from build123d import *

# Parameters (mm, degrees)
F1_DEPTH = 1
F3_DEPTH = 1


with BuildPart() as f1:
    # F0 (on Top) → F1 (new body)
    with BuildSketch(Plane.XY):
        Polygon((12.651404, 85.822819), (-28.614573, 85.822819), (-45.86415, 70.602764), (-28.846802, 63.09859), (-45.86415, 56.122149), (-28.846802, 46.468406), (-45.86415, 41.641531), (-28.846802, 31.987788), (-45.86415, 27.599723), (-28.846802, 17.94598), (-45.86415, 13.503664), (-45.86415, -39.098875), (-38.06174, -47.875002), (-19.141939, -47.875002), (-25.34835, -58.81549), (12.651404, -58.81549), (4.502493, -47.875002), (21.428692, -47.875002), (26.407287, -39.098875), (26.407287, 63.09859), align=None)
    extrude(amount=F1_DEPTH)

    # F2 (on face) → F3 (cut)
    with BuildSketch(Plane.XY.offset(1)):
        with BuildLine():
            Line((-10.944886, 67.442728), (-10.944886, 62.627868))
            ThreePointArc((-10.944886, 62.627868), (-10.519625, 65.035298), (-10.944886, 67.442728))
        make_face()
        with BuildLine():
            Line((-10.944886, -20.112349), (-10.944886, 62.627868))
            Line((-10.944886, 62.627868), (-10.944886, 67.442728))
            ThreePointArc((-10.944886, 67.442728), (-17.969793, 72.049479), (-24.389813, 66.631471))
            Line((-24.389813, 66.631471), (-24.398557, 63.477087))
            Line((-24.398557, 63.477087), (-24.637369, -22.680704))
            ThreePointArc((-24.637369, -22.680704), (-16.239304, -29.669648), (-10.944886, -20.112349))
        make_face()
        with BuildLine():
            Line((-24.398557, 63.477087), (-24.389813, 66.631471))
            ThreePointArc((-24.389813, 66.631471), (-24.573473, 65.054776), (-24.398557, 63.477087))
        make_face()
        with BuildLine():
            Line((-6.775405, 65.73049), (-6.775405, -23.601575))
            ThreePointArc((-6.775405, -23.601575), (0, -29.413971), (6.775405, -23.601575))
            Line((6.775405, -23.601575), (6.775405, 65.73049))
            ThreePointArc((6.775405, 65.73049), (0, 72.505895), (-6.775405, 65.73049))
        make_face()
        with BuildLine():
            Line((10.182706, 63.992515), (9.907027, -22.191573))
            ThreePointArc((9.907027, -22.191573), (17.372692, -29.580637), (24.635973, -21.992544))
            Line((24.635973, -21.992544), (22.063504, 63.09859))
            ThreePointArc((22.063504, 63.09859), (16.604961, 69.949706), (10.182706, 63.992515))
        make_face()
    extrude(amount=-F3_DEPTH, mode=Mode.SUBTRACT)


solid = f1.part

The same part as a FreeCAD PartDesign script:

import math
import FreeCAD as App
import Part
import Sketcher
from FreeCAD import Vector
Q = App.Units.Quantity


def add_polygon(sketch, points):
    """Adds a closed chain of lines whose ends are joined by coincident constraints."""
    first, n = sketch.GeometryCount, len(points)
    for a, b in zip(points, points[1:] + points[:1]):
        sketch.addGeometry(Part.LineSegment(App.Vector(*a, 0), App.Vector(*b, 0)), False)
    for i in range(n):
        sketch.addConstraint(Sketcher.Constraint("Coincident", first + i, 2, first + (i + 1) % n, 1))

doc = App.newDocument("Part")
body = doc.addObject("PartDesign::Body", "Body")

sketch1 = body.newObject("Sketcher::SketchObject", "Sketch")
sketch1.AttachmentSupport = (doc.getObject("XY_Plane"), [""])
sketch1.MapMode = "FlatFace"
add_polygon(sketch1, [(12.651404, 85.822819), (-28.614573, 85.822819), (-45.86415, 70.602764), (-28.846802, 63.09859), (-45.86415, 56.122149), (-28.846802, 46.468406), (-45.86415, 41.641531), (-28.846802, 31.987788), (-45.86415, 27.599723), (-28.846802, 17.94598), (-45.86415, 13.503664), (-45.86415, -39.098875), (-38.06174, -47.875002), (-19.141939, -47.875002), (-25.34835, -58.81549), (12.651404, -58.81549), (4.502493, -47.875002), (21.428692, -47.875002), (26.407287, -39.098875), (26.407287, 63.09859)])
sketch1.addConstraint(Sketcher.Constraint("Horizontal", 0))
sketch1.addConstraint(Sketcher.Constraint("Vertical", 10))
sketch1.addConstraint(Sketcher.Constraint("Horizontal", 12))
sketch1.addConstraint(Sketcher.Constraint("Horizontal", 14))
sketch1.addConstraint(Sketcher.Constraint("Horizontal", 16))
sketch1.addConstraint(Sketcher.Constraint("Vertical", 18))
sketch1.addConstraint(Sketcher.Constraint("Parallel", 4, 6))
sketch1.addConstraint(Sketcher.Constraint("Parallel", 6, 8))
sketch1.addConstraint(Sketcher.Constraint("Perpendicular", 8, 13))
sketch1.addConstraint(Sketcher.Constraint("Parallel", 13, 17))
sketch1.addConstraint(Sketcher.Constraint("Horizontal", 12, 2, 15, 2))
sketch1.addConstraint(Sketcher.Constraint("Horizontal", 10, 2, 17, 2))
sketch1.addConstraint(Sketcher.Constraint("Horizontal", 2, 2, 18, 2))
sketch1.addConstraint(Sketcher.Constraint("Vertical", 1, 2, 3, 2))
sketch1.addConstraint(Sketcher.Constraint("Vertical", 2, 2, 4, 2))
sketch1.addConstraint(Sketcher.Constraint("Vertical", 3, 2, 5, 2))
sketch1.addConstraint(Sketcher.Constraint("Vertical", 4, 2, 6, 2))
sketch1.addConstraint(Sketcher.Constraint("Vertical", 5, 2, 7, 2))
sketch1.addConstraint(Sketcher.Constraint("Vertical", 6, 2, 8, 2))
sketch1.addConstraint(Sketcher.Constraint("Vertical", 7, 2, 9, 2))
sketch1.addConstraint(Sketcher.Constraint("Vertical", 14, 2, 19, 2))
sketch1.addConstraint(Sketcher.Constraint("Distance", 11, Q("11.742998 mm")))
sketch1.addConstraint(Sketcher.Constraint("DistanceX", 12, 1, 12, 2, Q("18.919801 mm")))
sketch1.addConstraint(Sketcher.Constraint("DistanceX", 16, 1, 16, 2, Q("16.926199 mm")))
sketch1.addConstraint(Sketcher.Constraint("DistanceY", 10, 2, 10, 1, Q("52.602539 mm")))
sketch1.addConstraint(Sketcher.Constraint("DistanceX", 2, 2, -1, 1, Q("28.846802 mm")))
sketch1.addConstraint(Sketcher.Constraint("DistanceY", 10, 2, 7, 2, Q("66.698598 mm")))
sketch1.addConstraint(Sketcher.Constraint("DistanceX", 10, 2, 13, 2, Q("20.5158 mm")))
sketch1.addConstraint(Sketcher.Constraint("Distance", 2, Q("18.598461 mm")))
sketch1.addConstraint(Sketcher.Constraint("Distance", 3, Q("18.391869 mm")))
sketch1.addConstraint(Sketcher.Constraint("Distance", 4, Q("19.564889 mm")))
sketch1.addConstraint(Sketcher.Constraint("Distance", 15, Q("13.641812 mm")))
sketch1.addConstraint(Sketcher.Constraint("DistanceX", 0, 2, 0, 1, Q("41.265977 mm")))
sketch1.addConstraint(Sketcher.Constraint("DistanceX", 14, 1, 14, 2, Q("37.999754 mm")))
sketch1.addConstraint(Sketcher.Constraint("DistanceY", 18, 1, 18, 2, Q("102.197465 mm")))
sketch1.addConstraint(Sketcher.Constraint("DistanceY", -1, 1, 0, 2, Q("85.822819 mm")))
sketch1.addConstraint(Sketcher.Constraint("DistanceX", 1, 2, -1, 1, Q("45.86415 mm")))
sketch1.addConstraint(Sketcher.Constraint("DistanceY", -1, 1, 2, 2, Q("63.09859 mm")))
sketch1.addConstraint(Sketcher.Constraint("DistanceY", -1, 1, 5, 2, Q("41.641531 mm")))
sketch1.addConstraint(Sketcher.Constraint("DistanceX", 11, 2, -1, 1, Q("38.06174 mm")))
pad1 = body.newObject("PartDesign::Pad", "Pad")
pad1.Profile = sketch1
pad1.Length = 1

sketch2 = body.newObject("Sketcher::SketchObject", "Sketch001")
sketch2.AttachmentSupport = (doc.getObject("XY_Plane"), [""])
sketch2.MapMode = "FlatFace"
sketch2.AttachmentOffset = App.Placement(Vector(0, 0, 1), App.Rotation())
sketch2.addGeometry(Part.ArcOfCircle(Part.Circle(Vector(-17.546564, 65.035298, 0), Vector(0, 0, 1), 7.026939), math.radians(-20.035366), math.radians(20.035366)), False)
sketch2.addGeometry(Part.ArcOfCircle(Part.Circle(Vector(-17.546562, 65.035299, 0), Vector(0, 0, 1), 7.026937), math.radians(20.035362), math.radians(166.870635)), False)
sketch2.addGeometry(Part.ArcOfCircle(Part.Circle(Vector(-17.54657, 65.035297, 0), Vector(0, 0, 1), 7.02693), math.radians(166.870607), math.radians(192.811744)), False)
sketch2.addGeometry(Part.LineSegment(Vector(-24.398557, 63.477087, 0), Vector(-24.637369, -22.680704, 0)), False)
sketch2.addGeometry(Part.ArcOfCircle(Part.Circle(Vector(-17.546562, -22.700358, 0), Vector(0, 0, 1), 7.090834), math.radians(179.841188), math.radians(381.406324)), False)
sketch2.addGeometry(Part.LineSegment(Vector(-10.944886, -20.112349, 0), Vector(-10.944886, 62.627868, 0)), False)
sketch2.addGeometry(Part.LineSegment(Vector(-6.775405, 65.73049, 0), Vector(-6.775405, -23.601575, 0)), False)
sketch2.addGeometry(Part.ArcOfCircle(Part.Circle(Vector(0, -22.558789, 0), Vector(0, 0, 1), 6.855182), math.radians(-171.250405), math.radians(-8.749595)), False)
sketch2.addGeometry(Part.LineSegment(Vector(6.775405, -23.601575, 0), Vector(6.775405, 65.73049, 0)), False)
sketch2.addGeometry(Part.ArcOfCircle(Part.Circle(Vector(0, 65.73049, 0), Vector(0, 0, 1), 6.775405), math.radians(0), math.radians(180)), False)
sketch2.addGeometry(Part.LineSegment(Vector(10.182706, 63.992515, 0), Vector(9.907027, -22.191573, 0)), False)
sketch2.addGeometry(Part.ArcOfCircle(Part.Circle(Vector(17.273163, -22.215136, 0), Vector(0, 0, 1), 7.366174), math.radians(179.816724), math.radians(361.731632)), False)
sketch2.addGeometry(Part.LineSegment(Vector(24.635973, -21.992544, 0), Vector(22.063504, 63.09859, 0)), False)
sketch2.addGeometry(Part.ArcOfCircle(Part.Circle(Vector(16.156735, 63.992516, 0), Vector(0, 0, 1), 5.974029), math.radians(-8.605793), math.radians(180.000007)), False)
sketch2.addConstraint(Sketcher.Constraint("Tangent", 0, 2, 1, 1))
sketch2.addConstraint(Sketcher.Constraint("Tangent", 1, 2, 2, 1))
sketch2.addConstraint(Sketcher.Constraint("Coincident", 2, 2, 3, 1))
sketch2.addConstraint(Sketcher.Constraint("Tangent", 3, 2, 4, 1))
sketch2.addConstraint(Sketcher.Constraint("Coincident", 4, 2, 5, 1))
sketch2.addConstraint(Sketcher.Constraint("Coincident", 5, 2, 0, 1))
sketch2.addConstraint(Sketcher.Constraint("Coincident", 6, 2, 7, 1))
sketch2.addConstraint(Sketcher.Constraint("Coincident", 7, 2, 8, 1))
sketch2.addConstraint(Sketcher.Constraint("Tangent", 8, 2, 9, 1))
sketch2.addConstraint(Sketcher.Constraint("Tangent", 9, 2, 6, 1))
sketch2.addConstraint(Sketcher.Constraint("Tangent", 10, 2, 11, 1))
sketch2.addConstraint(Sketcher.Constraint("Tangent", 11, 2, 12, 1))
sketch2.addConstraint(Sketcher.Constraint("Coincident", 12, 2, 13, 1))
sketch2.addConstraint(Sketcher.Constraint("Coincident", 13, 2, 10, 1))
sketch2.addConstraint(Sketcher.Constraint("Vertical", 5))
sketch2.addConstraint(Sketcher.Constraint("Vertical", 6))
sketch2.addConstraint(Sketcher.Constraint("Vertical", 8))
sketch2.addConstraint(Sketcher.Constraint("Coincident", 2, 3, 0, 3))
sketch2.addConstraint(Sketcher.Constraint("Symmetric", 6, 2, 7, 2, -2))
sketch2.addConstraint(Sketcher.Constraint("Vertical", 1, 3, 4, 3))
sketch2.addConstraint(Sketcher.Constraint("Vertical", 0, 2, 4, 2))
sketch2.addConstraint(Sketcher.Constraint("Radius", 0, Q("7.026939 mm")))
sketch2.addConstraint(Sketcher.Constraint("Radius", 7, Q("6.855182 mm")))
sketch2.addConstraint(Sketcher.Constraint("Radius", 13, Q("5.974029 mm")))
sketch2.addConstraint(Sketcher.Constraint("DistanceY", 6, 2, 10, 2, Q("1.410002 mm")))
sketch2.addConstraint(Sketcher.Constraint("Radius", 4, Q("7.090834 mm")))
sketch2.addConstraint(Sketcher.Constraint("Radius", 9, Q("6.775405 mm")))
sketch2.addConstraint(Sketcher.Constraint("Radius", 11, Q("7.366174 mm")))
sketch2.addConstraint(Sketcher.Constraint("DistanceY", 3, 2, 2, 3, Q("87.716001 mm")))
sketch2.addConstraint(Sketcher.Constraint("DistanceY", -1, 1, 1, 3, Q("65.035299 mm")))
sketch2.addConstraint(Sketcher.Constraint("DistanceX", 0, 3, 13, 3, Q("33.703299 mm")))
sketch2.addConstraint(Sketcher.Constraint("DistanceX", 8, 2, 12, 2, Q("15.288099 mm")))
sketch2.addConstraint(Sketcher.Constraint("DistanceY", 12, 2, 8, 2, Q("2.6319 mm")))
sketch2.addConstraint(Sketcher.Constraint("DistanceX", 8, 2, 13, 2, Q("3.407301 mm")))
sketch2.addConstraint(Sketcher.Constraint("Distance", 3, Q("86.158122 mm")))
sketch2.addConstraint(Sketcher.Constraint("Distance", 10, Q("86.184529 mm")))
sketch2.addConstraint(Sketcher.Constraint("Distance", 12, Q("85.13001 mm")))
sketch2.addConstraint(Sketcher.Constraint("DistanceY", 5, 1, 5, 2, Q("82.740217 mm")))
sketch2.addConstraint(Sketcher.Constraint("DistanceY", 6, 2, 6, 1, Q("89.332065 mm")))
sketch2.addConstraint(Sketcher.Constraint("DistanceY", 7, 3, -1, 1, Q("22.558789 mm")))
sketch2.addConstraint(Sketcher.Constraint("DistanceY", -1, 1, 1, 2, Q("66.631471 mm")))
pocket1 = body.newObject("PartDesign::Pocket", "Pocket")
pocket1.Profile = sketch2
pocket1.Length = 1

doc.recompute()
